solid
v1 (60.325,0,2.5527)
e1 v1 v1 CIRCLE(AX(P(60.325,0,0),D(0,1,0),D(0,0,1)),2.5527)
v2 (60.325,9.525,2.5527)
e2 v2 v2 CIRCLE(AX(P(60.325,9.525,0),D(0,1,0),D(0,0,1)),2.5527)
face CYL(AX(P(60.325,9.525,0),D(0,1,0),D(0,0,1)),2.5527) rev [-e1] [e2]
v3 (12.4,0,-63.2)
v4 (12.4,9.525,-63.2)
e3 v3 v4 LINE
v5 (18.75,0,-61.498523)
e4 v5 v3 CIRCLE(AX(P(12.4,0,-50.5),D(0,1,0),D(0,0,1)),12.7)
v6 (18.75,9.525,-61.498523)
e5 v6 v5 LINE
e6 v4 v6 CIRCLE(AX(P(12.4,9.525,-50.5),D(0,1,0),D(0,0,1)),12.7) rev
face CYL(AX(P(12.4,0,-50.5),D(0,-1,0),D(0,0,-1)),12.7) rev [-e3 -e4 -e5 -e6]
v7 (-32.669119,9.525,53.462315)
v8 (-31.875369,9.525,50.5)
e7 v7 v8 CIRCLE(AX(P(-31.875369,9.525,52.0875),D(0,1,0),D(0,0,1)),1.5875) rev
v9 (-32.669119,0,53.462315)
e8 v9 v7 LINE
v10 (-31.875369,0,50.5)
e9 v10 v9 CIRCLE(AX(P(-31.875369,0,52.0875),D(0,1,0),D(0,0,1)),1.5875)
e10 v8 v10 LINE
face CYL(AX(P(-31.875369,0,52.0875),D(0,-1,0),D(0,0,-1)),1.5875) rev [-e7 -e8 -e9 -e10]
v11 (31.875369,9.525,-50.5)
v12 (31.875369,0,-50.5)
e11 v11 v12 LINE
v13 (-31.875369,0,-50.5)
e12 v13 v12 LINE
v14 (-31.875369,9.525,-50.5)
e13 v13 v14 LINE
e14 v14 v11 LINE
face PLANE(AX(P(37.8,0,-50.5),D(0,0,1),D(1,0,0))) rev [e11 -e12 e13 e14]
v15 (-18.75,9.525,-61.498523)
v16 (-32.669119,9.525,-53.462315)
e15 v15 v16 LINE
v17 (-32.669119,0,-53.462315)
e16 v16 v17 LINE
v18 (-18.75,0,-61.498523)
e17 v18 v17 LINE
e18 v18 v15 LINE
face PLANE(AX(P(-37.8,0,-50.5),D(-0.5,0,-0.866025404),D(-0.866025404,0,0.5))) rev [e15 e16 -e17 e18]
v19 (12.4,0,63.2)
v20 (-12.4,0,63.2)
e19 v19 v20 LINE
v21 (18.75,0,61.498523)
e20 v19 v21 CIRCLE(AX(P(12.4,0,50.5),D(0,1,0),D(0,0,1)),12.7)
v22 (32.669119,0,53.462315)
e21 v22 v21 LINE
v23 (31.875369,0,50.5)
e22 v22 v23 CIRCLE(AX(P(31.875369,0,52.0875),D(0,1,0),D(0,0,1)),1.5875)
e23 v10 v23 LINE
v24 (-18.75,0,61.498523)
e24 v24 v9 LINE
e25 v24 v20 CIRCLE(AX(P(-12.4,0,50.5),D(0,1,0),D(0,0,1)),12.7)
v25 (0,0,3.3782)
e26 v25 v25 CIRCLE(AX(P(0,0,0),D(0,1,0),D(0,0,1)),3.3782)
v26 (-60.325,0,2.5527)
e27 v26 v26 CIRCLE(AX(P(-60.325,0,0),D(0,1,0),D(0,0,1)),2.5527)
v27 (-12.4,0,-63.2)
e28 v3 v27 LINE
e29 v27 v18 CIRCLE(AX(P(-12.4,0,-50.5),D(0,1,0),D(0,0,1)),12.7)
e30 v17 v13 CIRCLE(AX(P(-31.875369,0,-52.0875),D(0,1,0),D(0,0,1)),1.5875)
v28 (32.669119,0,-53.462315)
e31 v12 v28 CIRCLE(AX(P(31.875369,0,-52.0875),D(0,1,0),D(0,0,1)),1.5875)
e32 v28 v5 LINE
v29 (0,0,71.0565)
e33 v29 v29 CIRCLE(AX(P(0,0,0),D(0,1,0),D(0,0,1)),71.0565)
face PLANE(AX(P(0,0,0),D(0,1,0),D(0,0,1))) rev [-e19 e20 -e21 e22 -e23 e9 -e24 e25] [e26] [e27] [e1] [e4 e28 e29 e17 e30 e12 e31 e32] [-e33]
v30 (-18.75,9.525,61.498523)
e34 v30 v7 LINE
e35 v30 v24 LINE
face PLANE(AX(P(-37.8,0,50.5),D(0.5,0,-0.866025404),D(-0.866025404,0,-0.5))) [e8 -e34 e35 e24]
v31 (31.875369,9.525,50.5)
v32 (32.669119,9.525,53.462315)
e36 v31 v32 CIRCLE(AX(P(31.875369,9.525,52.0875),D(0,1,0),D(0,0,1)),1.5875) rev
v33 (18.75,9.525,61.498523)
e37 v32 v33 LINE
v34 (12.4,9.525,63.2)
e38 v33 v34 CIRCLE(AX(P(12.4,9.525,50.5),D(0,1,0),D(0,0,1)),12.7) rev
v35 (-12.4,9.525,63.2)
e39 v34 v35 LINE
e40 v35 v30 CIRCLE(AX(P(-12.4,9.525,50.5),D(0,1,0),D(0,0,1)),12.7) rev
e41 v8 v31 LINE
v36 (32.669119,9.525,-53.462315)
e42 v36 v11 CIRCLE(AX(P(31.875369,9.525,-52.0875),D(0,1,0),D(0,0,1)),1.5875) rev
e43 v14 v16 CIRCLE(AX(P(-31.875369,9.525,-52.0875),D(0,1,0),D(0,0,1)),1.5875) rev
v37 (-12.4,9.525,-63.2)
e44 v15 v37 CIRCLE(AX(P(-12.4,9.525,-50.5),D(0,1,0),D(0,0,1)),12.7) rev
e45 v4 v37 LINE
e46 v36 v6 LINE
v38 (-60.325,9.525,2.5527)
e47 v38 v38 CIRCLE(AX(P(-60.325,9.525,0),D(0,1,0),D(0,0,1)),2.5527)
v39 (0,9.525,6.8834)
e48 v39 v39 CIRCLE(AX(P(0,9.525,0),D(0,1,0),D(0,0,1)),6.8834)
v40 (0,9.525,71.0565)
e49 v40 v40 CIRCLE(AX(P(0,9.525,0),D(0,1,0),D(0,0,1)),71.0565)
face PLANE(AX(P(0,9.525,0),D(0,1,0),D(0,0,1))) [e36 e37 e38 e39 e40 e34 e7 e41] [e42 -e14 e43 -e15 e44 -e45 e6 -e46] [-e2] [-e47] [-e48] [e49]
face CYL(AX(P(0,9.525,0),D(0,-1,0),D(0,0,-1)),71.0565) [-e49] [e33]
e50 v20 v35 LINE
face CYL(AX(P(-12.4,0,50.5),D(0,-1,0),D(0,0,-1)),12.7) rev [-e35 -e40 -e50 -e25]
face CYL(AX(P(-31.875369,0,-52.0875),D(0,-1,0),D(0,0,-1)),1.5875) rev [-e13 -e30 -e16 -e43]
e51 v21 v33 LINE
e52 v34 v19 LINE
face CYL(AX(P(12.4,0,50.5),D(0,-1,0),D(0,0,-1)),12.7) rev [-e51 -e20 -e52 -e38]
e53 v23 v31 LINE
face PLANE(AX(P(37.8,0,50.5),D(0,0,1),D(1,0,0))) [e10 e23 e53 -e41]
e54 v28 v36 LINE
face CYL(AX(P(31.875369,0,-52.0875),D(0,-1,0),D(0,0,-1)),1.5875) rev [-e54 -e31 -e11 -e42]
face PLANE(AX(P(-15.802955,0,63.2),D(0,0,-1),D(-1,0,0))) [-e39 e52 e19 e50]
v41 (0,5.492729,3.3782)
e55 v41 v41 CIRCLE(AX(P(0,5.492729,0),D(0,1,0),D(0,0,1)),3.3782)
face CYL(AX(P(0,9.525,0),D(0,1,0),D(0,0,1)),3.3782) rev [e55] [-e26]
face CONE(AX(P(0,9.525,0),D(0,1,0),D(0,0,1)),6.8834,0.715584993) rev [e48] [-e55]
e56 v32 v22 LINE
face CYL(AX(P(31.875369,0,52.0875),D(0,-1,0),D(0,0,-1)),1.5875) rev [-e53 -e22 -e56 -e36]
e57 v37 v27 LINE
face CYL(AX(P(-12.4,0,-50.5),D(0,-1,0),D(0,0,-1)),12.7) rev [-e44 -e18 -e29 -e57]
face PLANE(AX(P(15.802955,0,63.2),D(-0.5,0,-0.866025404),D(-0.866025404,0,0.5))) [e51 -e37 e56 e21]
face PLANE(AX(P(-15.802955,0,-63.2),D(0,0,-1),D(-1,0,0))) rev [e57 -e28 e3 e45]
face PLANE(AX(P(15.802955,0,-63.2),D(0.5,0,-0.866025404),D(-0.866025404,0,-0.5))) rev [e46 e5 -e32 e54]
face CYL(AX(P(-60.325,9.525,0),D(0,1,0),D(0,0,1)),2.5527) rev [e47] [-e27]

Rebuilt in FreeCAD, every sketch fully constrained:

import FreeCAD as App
import Part
import Sketcher

V = App.Vector
Q = App.Units.Quantity


def edges_at(feature, points):
    """Names of the edges that pass closest to the given points."""
    edges = feature.Shape.Edges
    near = lambda p: min(range(len(edges)), key=lambda i: edges[i].distToShape(Part.Vertex(*p))[0])
    return sorted({f"Edge{near(p) + 1}" for p in points})

doc = App.newDocument("Part")
body = doc.addObject("PartDesign::Body", "Body")

sketch1 = doc.addObject("Sketcher::SketchObject", "Sketch")
body.addObject(sketch1)
sketch1.AttachmentSupport = (doc.XZ_Plane, [""])
sketch1.MapMode = "FlatFace"
sketch1.addGeometry(Part.Circle(V(0, 0, 0), V(0, 0, 1), 71), False)
sketch1.addConstraint([
    Sketcher.Constraint("Coincident", 0, 3, -1, 1),
    Sketcher.Constraint("Diameter", 0, Q("5.595 in")),
])
pad1 = doc.addObject("PartDesign::Pad", "Pad")
body.addObject(pad1)
pad1.Profile = sketch1
pad1.Length = Q("0.375 in")
pad1.Reversed = True

sketch2 = doc.addObject("Sketcher::SketchObject", "Sketch001")
body.addObject(sketch2)
sketch2.AttachmentSupport = (doc.XZ_Plane, [""])
sketch2.MapMode = "FlatFace"
sketch2.AttachmentOffset = App.Placement(V(0, 0, -0.375 * 25.4), App.Rotation())
sketch2.addGeometry([
    Part.Circle(V(-60.3, 0, 0), V(0, 0, 1), 2.6),
    Part.Circle(V(60.3, 0, 0), V(0, 0, 1), 2.6),
], False)
sketch2.addConstraint([
    Sketcher.Constraint("Equal", 0, 1),
    Sketcher.Constraint("Symmetric", 0, 3, 1, 3, -1, 1),
    Sketcher.Constraint("PointOnObject", 0, 3, -1),
    Sketcher.Constraint("Diameter", 0, Q("0.201 in")),
    Sketcher.Constraint("DistanceX", 0, 3, 1, 3, Q("4.75 in")),
])
doc.recompute()
hole = doc.addObject("PartDesign::Hole", "Hole")
body.addObject(hole)
hole.Profile = sketch2
hole.ThreadType = "None"
hole.Diameter = Q("0.201 in")
hole.DepthType = "ThroughAll"
hole.Reversed = True

sketch3 = doc.addObject("Sketcher::SketchObject", "Sketch002")
body.addObject(sketch3)
sketch3.AttachmentSupport = (doc.XZ_Plane, [""])
sketch3.MapMode = "FlatFace"
sketch3.AttachmentOffset = App.Placement(V(0, 0, -0.375 * 25.4), App.Rotation())
sketch3.addGeometry(Part.Circle(V(0, 0, 0), V(0, 0, 1), 3.4), False)
sketch3.addConstraint([
    Sketcher.Constraint("Coincident", 0, 3, -1, 1),
    Sketcher.Constraint("Diameter", 0, Q("0.266 in")),
])
doc.recompute()
hole2 = doc.addObject("PartDesign::Hole", "Hole001")
body.addObject(hole2)
hole2.Profile = sketch3
hole2.ThreadType = "None"
hole2.Diameter = Q("0.266 in")
hole2.DepthType = "ThroughAll"
hole2.HoleCutType = "Countersink"
hole2.HoleCutDiameter = Q("0.542 in")
hole2.HoleCutCountersinkAngle = 82
hole2.Reversed = True

sketch4 = doc.addObject("Sketcher::SketchObject", "Sketch003")
body.addObject(sketch4)
sketch4.AttachmentSupport = (doc.XZ_Plane, [""])
sketch4.MapMode = "FlatFace"
sketch4.AttachmentOffset = App.Placement(V(0, 0, 1), App.Rotation())
sketch4.addGeometry([
    Part.LineSegment(V(-16, -63, 0), V(-38, -50, 0)),
    Part.LineSegment(V(-38, -50, 0), V(38, -50, 0)),
    Part.LineSegment(V(38, -50, 0), V(16, -63, 0)),
    Part.LineSegment(V(16, -63, 0), V(-16, -63, 0)),
], False)
sketch4.addConstraint([
    Sketcher.Constraint("Coincident", 0, 2, 1, 1),
    Sketcher.Constraint("Coincident", 1, 2, 2, 1),
    Sketcher.Constraint("Coincident", 2, 2, 3, 1),
    Sketcher.Constraint("Coincident", 3, 2, 0, 1),
    Sketcher.Constraint("Horizontal", 1),
    Sketcher.Constraint("Horizontal", 3),
    Sketcher.Constraint("Equal", 0, 2),
    Sketcher.Constraint("Distance", 0, Q("1 in")),
    Sketcher.Constraint("Angle", 0, Q("150 deg")),
    Sketcher.Constraint("DistanceX", 1, 1, 1, 2, 75.6),
    Sketcher.Constraint("DistanceX", 0, 2, -1, 1, 37.8),
    Sketcher.Constraint("DistanceY", 0, 2, -1, 1, 50.5),
])
pocket1 = doc.addObject("PartDesign::Pocket", "Pocket")
body.addObject(pocket1)
pocket1.Profile = sketch4
pocket1.Length = 11.525
doc.recompute()

fillet = doc.addObject("PartDesign::Fillet", "Fillet")
body.addObject(fillet)
fillet.Base = (pocket1, edges_at(pocket1, [(-15.803, 4.763, -63.2), (15.803, 4.763, -63.2)]))
fillet.Radius = Q("0.5 in")
doc.recompute()

fillet2 = doc.addObject("PartDesign::Fillet", "Fillet001")
body.addObject(fillet2)
fillet2.Base = (fillet, edges_at(fillet, [(37.8, 4.763, -50.5), (-37.8, 4.763, -50.5)]))
fillet2.Radius = Q("0.0625 in")
doc.recompute()

mirrored = doc.addObject("PartDesign::Mirrored", "Mirrored")
body.addObject(mirrored)
mirrored.Originals = [pocket1]
mirrored.MirrorPlane = (doc.XY_Plane, [""])
body.Tip = mirrored
doc.recompute()

fillet3 = doc.addObject("PartDesign::Fillet", "Fillet002")
body.addObject(fillet3)
fillet3.Base = (mirrored, edges_at(mirrored, [(-15.803, 4.763, 63.2), (15.803, 4.763, 63.2)]))
fillet3.Radius = Q("0.5 in")
doc.recompute()

fillet4 = doc.addObject("PartDesign::Fillet", "Fillet003")
body.addObject(fillet4)
fillet4.Base = (fillet3, edges_at(fillet3, [(37.8, 4.763, 50.5), (-37.8, 4.763, 50.5)]))
fillet4.Radius = Q("0.0625 in")

doc.recompute()
